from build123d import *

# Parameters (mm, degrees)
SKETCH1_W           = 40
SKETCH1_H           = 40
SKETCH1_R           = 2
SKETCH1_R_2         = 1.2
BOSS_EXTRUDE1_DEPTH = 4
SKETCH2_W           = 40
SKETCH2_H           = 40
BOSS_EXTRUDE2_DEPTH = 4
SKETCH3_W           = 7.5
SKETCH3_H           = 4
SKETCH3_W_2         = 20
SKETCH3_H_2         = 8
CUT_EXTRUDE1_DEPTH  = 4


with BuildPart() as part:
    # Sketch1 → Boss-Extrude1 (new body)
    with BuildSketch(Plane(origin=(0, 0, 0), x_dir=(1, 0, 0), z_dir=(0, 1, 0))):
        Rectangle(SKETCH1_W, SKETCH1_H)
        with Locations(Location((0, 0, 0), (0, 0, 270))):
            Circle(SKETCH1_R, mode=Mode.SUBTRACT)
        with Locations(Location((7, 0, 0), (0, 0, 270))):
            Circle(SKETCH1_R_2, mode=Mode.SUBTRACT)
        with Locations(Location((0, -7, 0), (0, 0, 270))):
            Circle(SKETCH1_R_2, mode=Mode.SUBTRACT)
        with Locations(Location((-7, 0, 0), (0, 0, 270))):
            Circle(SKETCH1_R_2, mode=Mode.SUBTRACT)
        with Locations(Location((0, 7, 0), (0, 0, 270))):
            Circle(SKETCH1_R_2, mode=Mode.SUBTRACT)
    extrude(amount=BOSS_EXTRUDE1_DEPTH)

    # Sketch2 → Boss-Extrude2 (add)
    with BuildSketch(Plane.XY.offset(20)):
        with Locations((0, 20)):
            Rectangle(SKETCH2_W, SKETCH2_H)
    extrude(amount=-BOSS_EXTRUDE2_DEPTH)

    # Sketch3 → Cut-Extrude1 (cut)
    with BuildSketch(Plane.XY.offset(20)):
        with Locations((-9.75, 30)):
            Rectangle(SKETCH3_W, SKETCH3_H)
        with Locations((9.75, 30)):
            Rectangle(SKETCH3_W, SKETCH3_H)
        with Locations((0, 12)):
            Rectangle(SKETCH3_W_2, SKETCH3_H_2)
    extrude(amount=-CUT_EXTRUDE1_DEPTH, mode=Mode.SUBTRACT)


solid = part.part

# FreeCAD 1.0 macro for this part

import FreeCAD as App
import Part
import Sketcher
from FreeCAD import Vector

doc = App.newDocument("Part")
body = doc.addObject("PartDesign::Body", "Body")

sketch1 = body.newObject("Sketcher::SketchObject", "Sketch")
sketch1.AttachmentSupport = (doc.getObject("XZ_Plane"), [""])
sketch1.MapMode = "FlatFace"
sketch1.addGeometry(Part.LineSegment(Vector(-20, -20, 0), Vector(-20, 20, 0)), False)
sketch1.addGeometry(Part.LineSegment(Vector(-20, 20, 0), Vector(20, 20, 0)), False)
sketch1.addGeometry(Part.LineSegment(Vector(20, 20, 0), Vector(20, -20, 0)), False)
sketch1.addGeometry(Part.LineSegment(Vector(20, -20, 0), Vector(-20, -20, 0)), False)
sketch1.addGeometry(Part.Circle(Vector(0, 7, 0), Vector(0, 0, 1), 1.2), False)
sketch1.addGeometry(Part.Circle(Vector(-7, 0, 0), Vector(0, 0, 1), 1.2), False)
sketch1.addGeometry(Part.Circle(Vector(0, 0, 0), Vector(0, 0, 1), 2), False)
sketch1.addGeometry(Part.Circle(Vector(7, 0, 0), Vector(0, 0, 1), 1.2), False)
sketch1.addGeometry(Part.Circle(Vector(0, -7, 0), Vector(0, 0, 1), 1.2), False)
sketch1.addConstraint(Sketcher.Constraint("Coincident", 0, 2, 1, 1))
sketch1.addConstraint(Sketcher.Constraint("Coincident", 1, 2, 2, 1))
sketch1.addConstraint(Sketcher.Constraint("Coincident", 2, 2, 3, 1))
sketch1.addConstraint(Sketcher.Constraint("Coincident", 3, 2, 0, 1))
sketch1.addConstraint(Sketcher.Constraint("Vertical", 0))
sketch1.addConstraint(Sketcher.Constraint("Horizontal", 1))
sketch1.addConstraint(Sketcher.Constraint("Vertical", 2))
sketch1.addConstraint(Sketcher.Constraint("Horizontal", 3))
sketch1.addConstraint(Sketcher.Constraint("Coincident", 6, 3, -1, 1))
sketch1.addConstraint(Sketcher.Constraint("Equal", 4, 5))
sketch1.addConstraint(Sketcher.Constraint("Equal", 5, 7))
sketch1.addConstraint(Sketcher.Constraint("Equal", 7, 8))
sketch1.addConstraint(Sketcher.Constraint("Symmetric", 5, 3, 7, 3, -1, 1))
sketch1.addConstraint(Sketcher.Constraint("Symmetric", 4, 3, 8, 3, -1, 1))
sketch1.addConstraint(Sketcher.Constraint("Symmetric", 0, 2, 2, 2, -1, 1))
sketch1.addConstraint(Sketcher.Constraint("PointOnObject", 4, 3, -2))
sketch1.addConstraint(Sketcher.Constraint("PointOnObject", 5, 3, -1))
sketch1.addConstraint(Sketcher.Constraint("Equal", 3, 0))
sketch1.addConstraint(Sketcher.Constraint("Diameter", 6, 4.0))
sketch1.addConstraint(Sketcher.Constraint("Diameter", 4, 2.4))
sketch1.addConstraint(Sketcher.Constraint("DistanceX", 1, 1, 1, 2, 40.0))
sketch1.addConstraint(Sketcher.Constraint("DistanceY", -1, 1, 4, 3, 7.0))
sketch1.addConstraint(Sketcher.Constraint("DistanceX", 5, 3, -1, 1, 7.0))
pad1 = body.newObject("PartDesign::Pad", "Pad")
pad1.Profile = sketch1
pad1.Length = 4
pad1.Reversed = True

sketch2 = body.newObject("Sketcher::SketchObject", "Sketch001")
sketch2.AttachmentSupport = (doc.getObject("XY_Plane"), [""])
sketch2.MapMode = "FlatFace"
sketch2.AttachmentOffset = App.Placement(Vector(0, 0, 20), App.Rotation())
sketch2.addGeometry(Part.LineSegment(Vector(-20, 40, 0), Vector(-20, 0, 0)), False)
sketch2.addGeometry(Part.LineSegment(Vector(-20, 0, 0), Vector(20, 0, 0)), False)
sketch2.addGeometry(Part.LineSegment(Vector(20, 0, 0), Vector(20, 40, 0)), False)
sketch2.addGeometry(Part.LineSegment(Vector(20, 40, 0), Vector(-20, 40, 0)), False)
sketch2.addConstraint(Sketcher.Constraint("Coincident", 0, 2, 1, 1))
sketch2.addConstraint(Sketcher.Constraint("Coincident", 1, 2, 2, 1))
sketch2.addConstraint(Sketcher.Constraint("Coincident", 2, 2, 3, 1))
sketch2.addConstraint(Sketcher.Constraint("Coincident", 3, 2, 0, 1))
sketch2.addConstraint(Sketcher.Constraint("Vertical", 0))
sketch2.addConstraint(Sketcher.Constraint("Horizontal", 1))
sketch2.addConstraint(Sketcher.Constraint("Vertical", 2))
sketch2.addConstraint(Sketcher.Constraint("Horizontal", 3))
sketch2.addConstraint(Sketcher.Constraint("Symmetric", 0, 2, 1, 2, -1, 1))
sketch2.addConstraint(Sketcher.Constraint("Equal", 3, 0))
sketch2.addConstraint(Sketcher.Constraint("DistanceX", 1, 1, 1, 2, 40.0))
pad2 = body.newObject("PartDesign::Pad", "Pad001")
pad2.Profile = sketch2
pad2.Length = 4
pad2.Reversed = True

sketch3 = body.newObject("Sketcher::SketchObject", "Sketch002")
sketch3.AttachmentSupport = (doc.getObject("XY_Plane"), [""])
sketch3.MapMode = "FlatFace"
sketch3.AttachmentOffset = App.Placement(Vector(0, 0, 20), App.Rotation())
sketch3.addGeometry(Part.LineSegment(Vector(-13.5, 32, 0), Vector(-13.5, 28, 0)), False)
sketch3.addGeometry(Part.LineSegment(Vector(-13.5, 28, 0), Vector(-6, 28, 0)), False)
sketch3.addGeometry(Part.LineSegment(Vector(-6, 28, 0), Vector(-6, 32, 0)), False)
sketch3.addGeometry(Part.LineSegment(Vector(-6, 32, 0), Vector(-13.5, 32, 0)), False)
sketch3.addGeometry(Part.LineSegment(Vector(6, 32, 0), Vector(6, 28, 0)), False)
sketch3.addGeometry(Part.LineSegment(Vector(6, 28, 0), Vector(13.5, 28, 0)), False)
sketch3.addGeometry(Part.LineSegment(Vector(13.5, 28, 0), Vector(13.5, 32, 0)), False)
sketch3.addGeometry(Part.LineSegment(Vector(13.5, 32, 0), Vector(6, 32, 0)), False)
sketch3.addGeometry(Part.LineSegment(Vector(-10, 16, 0), Vector(-10, 8, 0)), False)
sketch3.addGeometry(Part.LineSegment(Vector(-10, 8, 0), Vector(10, 8, 0)), False)
sketch3.addGeometry(Part.LineSegment(Vector(10, 8, 0), Vector(10, 16, 0)), False)
sketch3.addGeometry(Part.LineSegment(Vector(10, 16, 0), Vector(-10, 16, 0)), False)
sketch3.addConstraint(Sketcher.Constraint("Coincident", 0, 2, 1, 1))
sketch3.addConstraint(Sketcher.Constraint("Coincident", 1, 2, 2, 1))
sketch3.addConstraint(Sketcher.Constraint("Coincident", 2, 2, 3, 1))
sketch3.addConstraint(Sketcher.Constraint("Coincident", 3, 2, 0, 1))
sketch3.addConstraint(Sketcher.Constraint("Coincident", 4, 2, 5, 1))
sketch3.addConstraint(Sketcher.Constraint("Coincident", 5, 2, 6, 1))
sketch3.addConstraint(Sketcher.Constraint("Coincident", 6, 2, 7, 1))
sketch3.addConstraint(Sketcher.Constraint("Coincident", 7, 2, 4, 1))
sketch3.addConstraint(Sketcher.Constraint("Coincident", 8, 2, 9, 1))
sketch3.addConstraint(Sketcher.Constraint("Coincident", 9, 2, 10, 1))
sketch3.addConstraint(Sketcher.Constraint("Coincident", 10, 2, 11, 1))
sketch3.addConstraint(Sketcher.Constraint("Coincident", 11, 2, 8, 1))
sketch3.addConstraint(Sketcher.Constraint("Vertical", 0))
sketch3.addConstraint(Sketcher.Constraint("Horizontal", 1))
sketch3.addConstraint(Sketcher.Constraint("Vertical", 2))
sketch3.addConstraint(Sketcher.Constraint("Horizontal", 3))
sketch3.addConstraint(Sketcher.Constraint("Vertical", 4))
sketch3.addConstraint(Sketcher.Constraint("Horizontal", 5))
sketch3.addConstraint(Sketcher.Constraint("Vertical", 6))
sketch3.addConstraint(Sketcher.Constraint("Horizontal", 7))
sketch3.addConstraint(Sketcher.Constraint("Vertical", 8))
sketch3.addConstraint(Sketcher.Constraint("Horizontal", 9))
sketch3.addConstraint(Sketcher.Constraint("Vertical", 10))
sketch3.addConstraint(Sketcher.Constraint("Horizontal", 11))
sketch3.addConstraint(Sketcher.Constraint("Symmetric", 1, 2, 4, 2, -2))
sketch3.addConstraint(Sketcher.Constraint("Symmetric", 3, 2, 6, 2, -2))
sketch3.addConstraint(Sketcher.Constraint("DistanceX", 9, 1, 9, 2, 20.0))
sketch3.addConstraint(Sketcher.Constraint("DistanceY", 0, 2, 0, 1, 4.0))
sketch3.addConstraint(Sketcher.Constraint("DistanceY", 8, 2, 8, 1, 8.0))
sketch3.addConstraint(Sketcher.Constraint("DistanceX", 1, 1, 1, 2, 7.5))
sketch3.addConstraint(Sketcher.Constraint("DistanceY", -1, 1, 0, 2, 28.0))
sketch3.addConstraint(Sketcher.Constraint("DistanceX", 1, 2, -1, 1, 6.0))
sketch3.addConstraint(Sketcher.Constraint("DistanceX", 8, 2, -1, 1, 10.0))
sketch3.addConstraint(Sketcher.Constraint("DistanceY", -1, 1, 8, 2, 8.0))
pocket1 = body.newObject("PartDesign::Pocket", "Pocket")
pocket1.Profile = sketch3
pocket1.Length = 4

doc.recompute()
